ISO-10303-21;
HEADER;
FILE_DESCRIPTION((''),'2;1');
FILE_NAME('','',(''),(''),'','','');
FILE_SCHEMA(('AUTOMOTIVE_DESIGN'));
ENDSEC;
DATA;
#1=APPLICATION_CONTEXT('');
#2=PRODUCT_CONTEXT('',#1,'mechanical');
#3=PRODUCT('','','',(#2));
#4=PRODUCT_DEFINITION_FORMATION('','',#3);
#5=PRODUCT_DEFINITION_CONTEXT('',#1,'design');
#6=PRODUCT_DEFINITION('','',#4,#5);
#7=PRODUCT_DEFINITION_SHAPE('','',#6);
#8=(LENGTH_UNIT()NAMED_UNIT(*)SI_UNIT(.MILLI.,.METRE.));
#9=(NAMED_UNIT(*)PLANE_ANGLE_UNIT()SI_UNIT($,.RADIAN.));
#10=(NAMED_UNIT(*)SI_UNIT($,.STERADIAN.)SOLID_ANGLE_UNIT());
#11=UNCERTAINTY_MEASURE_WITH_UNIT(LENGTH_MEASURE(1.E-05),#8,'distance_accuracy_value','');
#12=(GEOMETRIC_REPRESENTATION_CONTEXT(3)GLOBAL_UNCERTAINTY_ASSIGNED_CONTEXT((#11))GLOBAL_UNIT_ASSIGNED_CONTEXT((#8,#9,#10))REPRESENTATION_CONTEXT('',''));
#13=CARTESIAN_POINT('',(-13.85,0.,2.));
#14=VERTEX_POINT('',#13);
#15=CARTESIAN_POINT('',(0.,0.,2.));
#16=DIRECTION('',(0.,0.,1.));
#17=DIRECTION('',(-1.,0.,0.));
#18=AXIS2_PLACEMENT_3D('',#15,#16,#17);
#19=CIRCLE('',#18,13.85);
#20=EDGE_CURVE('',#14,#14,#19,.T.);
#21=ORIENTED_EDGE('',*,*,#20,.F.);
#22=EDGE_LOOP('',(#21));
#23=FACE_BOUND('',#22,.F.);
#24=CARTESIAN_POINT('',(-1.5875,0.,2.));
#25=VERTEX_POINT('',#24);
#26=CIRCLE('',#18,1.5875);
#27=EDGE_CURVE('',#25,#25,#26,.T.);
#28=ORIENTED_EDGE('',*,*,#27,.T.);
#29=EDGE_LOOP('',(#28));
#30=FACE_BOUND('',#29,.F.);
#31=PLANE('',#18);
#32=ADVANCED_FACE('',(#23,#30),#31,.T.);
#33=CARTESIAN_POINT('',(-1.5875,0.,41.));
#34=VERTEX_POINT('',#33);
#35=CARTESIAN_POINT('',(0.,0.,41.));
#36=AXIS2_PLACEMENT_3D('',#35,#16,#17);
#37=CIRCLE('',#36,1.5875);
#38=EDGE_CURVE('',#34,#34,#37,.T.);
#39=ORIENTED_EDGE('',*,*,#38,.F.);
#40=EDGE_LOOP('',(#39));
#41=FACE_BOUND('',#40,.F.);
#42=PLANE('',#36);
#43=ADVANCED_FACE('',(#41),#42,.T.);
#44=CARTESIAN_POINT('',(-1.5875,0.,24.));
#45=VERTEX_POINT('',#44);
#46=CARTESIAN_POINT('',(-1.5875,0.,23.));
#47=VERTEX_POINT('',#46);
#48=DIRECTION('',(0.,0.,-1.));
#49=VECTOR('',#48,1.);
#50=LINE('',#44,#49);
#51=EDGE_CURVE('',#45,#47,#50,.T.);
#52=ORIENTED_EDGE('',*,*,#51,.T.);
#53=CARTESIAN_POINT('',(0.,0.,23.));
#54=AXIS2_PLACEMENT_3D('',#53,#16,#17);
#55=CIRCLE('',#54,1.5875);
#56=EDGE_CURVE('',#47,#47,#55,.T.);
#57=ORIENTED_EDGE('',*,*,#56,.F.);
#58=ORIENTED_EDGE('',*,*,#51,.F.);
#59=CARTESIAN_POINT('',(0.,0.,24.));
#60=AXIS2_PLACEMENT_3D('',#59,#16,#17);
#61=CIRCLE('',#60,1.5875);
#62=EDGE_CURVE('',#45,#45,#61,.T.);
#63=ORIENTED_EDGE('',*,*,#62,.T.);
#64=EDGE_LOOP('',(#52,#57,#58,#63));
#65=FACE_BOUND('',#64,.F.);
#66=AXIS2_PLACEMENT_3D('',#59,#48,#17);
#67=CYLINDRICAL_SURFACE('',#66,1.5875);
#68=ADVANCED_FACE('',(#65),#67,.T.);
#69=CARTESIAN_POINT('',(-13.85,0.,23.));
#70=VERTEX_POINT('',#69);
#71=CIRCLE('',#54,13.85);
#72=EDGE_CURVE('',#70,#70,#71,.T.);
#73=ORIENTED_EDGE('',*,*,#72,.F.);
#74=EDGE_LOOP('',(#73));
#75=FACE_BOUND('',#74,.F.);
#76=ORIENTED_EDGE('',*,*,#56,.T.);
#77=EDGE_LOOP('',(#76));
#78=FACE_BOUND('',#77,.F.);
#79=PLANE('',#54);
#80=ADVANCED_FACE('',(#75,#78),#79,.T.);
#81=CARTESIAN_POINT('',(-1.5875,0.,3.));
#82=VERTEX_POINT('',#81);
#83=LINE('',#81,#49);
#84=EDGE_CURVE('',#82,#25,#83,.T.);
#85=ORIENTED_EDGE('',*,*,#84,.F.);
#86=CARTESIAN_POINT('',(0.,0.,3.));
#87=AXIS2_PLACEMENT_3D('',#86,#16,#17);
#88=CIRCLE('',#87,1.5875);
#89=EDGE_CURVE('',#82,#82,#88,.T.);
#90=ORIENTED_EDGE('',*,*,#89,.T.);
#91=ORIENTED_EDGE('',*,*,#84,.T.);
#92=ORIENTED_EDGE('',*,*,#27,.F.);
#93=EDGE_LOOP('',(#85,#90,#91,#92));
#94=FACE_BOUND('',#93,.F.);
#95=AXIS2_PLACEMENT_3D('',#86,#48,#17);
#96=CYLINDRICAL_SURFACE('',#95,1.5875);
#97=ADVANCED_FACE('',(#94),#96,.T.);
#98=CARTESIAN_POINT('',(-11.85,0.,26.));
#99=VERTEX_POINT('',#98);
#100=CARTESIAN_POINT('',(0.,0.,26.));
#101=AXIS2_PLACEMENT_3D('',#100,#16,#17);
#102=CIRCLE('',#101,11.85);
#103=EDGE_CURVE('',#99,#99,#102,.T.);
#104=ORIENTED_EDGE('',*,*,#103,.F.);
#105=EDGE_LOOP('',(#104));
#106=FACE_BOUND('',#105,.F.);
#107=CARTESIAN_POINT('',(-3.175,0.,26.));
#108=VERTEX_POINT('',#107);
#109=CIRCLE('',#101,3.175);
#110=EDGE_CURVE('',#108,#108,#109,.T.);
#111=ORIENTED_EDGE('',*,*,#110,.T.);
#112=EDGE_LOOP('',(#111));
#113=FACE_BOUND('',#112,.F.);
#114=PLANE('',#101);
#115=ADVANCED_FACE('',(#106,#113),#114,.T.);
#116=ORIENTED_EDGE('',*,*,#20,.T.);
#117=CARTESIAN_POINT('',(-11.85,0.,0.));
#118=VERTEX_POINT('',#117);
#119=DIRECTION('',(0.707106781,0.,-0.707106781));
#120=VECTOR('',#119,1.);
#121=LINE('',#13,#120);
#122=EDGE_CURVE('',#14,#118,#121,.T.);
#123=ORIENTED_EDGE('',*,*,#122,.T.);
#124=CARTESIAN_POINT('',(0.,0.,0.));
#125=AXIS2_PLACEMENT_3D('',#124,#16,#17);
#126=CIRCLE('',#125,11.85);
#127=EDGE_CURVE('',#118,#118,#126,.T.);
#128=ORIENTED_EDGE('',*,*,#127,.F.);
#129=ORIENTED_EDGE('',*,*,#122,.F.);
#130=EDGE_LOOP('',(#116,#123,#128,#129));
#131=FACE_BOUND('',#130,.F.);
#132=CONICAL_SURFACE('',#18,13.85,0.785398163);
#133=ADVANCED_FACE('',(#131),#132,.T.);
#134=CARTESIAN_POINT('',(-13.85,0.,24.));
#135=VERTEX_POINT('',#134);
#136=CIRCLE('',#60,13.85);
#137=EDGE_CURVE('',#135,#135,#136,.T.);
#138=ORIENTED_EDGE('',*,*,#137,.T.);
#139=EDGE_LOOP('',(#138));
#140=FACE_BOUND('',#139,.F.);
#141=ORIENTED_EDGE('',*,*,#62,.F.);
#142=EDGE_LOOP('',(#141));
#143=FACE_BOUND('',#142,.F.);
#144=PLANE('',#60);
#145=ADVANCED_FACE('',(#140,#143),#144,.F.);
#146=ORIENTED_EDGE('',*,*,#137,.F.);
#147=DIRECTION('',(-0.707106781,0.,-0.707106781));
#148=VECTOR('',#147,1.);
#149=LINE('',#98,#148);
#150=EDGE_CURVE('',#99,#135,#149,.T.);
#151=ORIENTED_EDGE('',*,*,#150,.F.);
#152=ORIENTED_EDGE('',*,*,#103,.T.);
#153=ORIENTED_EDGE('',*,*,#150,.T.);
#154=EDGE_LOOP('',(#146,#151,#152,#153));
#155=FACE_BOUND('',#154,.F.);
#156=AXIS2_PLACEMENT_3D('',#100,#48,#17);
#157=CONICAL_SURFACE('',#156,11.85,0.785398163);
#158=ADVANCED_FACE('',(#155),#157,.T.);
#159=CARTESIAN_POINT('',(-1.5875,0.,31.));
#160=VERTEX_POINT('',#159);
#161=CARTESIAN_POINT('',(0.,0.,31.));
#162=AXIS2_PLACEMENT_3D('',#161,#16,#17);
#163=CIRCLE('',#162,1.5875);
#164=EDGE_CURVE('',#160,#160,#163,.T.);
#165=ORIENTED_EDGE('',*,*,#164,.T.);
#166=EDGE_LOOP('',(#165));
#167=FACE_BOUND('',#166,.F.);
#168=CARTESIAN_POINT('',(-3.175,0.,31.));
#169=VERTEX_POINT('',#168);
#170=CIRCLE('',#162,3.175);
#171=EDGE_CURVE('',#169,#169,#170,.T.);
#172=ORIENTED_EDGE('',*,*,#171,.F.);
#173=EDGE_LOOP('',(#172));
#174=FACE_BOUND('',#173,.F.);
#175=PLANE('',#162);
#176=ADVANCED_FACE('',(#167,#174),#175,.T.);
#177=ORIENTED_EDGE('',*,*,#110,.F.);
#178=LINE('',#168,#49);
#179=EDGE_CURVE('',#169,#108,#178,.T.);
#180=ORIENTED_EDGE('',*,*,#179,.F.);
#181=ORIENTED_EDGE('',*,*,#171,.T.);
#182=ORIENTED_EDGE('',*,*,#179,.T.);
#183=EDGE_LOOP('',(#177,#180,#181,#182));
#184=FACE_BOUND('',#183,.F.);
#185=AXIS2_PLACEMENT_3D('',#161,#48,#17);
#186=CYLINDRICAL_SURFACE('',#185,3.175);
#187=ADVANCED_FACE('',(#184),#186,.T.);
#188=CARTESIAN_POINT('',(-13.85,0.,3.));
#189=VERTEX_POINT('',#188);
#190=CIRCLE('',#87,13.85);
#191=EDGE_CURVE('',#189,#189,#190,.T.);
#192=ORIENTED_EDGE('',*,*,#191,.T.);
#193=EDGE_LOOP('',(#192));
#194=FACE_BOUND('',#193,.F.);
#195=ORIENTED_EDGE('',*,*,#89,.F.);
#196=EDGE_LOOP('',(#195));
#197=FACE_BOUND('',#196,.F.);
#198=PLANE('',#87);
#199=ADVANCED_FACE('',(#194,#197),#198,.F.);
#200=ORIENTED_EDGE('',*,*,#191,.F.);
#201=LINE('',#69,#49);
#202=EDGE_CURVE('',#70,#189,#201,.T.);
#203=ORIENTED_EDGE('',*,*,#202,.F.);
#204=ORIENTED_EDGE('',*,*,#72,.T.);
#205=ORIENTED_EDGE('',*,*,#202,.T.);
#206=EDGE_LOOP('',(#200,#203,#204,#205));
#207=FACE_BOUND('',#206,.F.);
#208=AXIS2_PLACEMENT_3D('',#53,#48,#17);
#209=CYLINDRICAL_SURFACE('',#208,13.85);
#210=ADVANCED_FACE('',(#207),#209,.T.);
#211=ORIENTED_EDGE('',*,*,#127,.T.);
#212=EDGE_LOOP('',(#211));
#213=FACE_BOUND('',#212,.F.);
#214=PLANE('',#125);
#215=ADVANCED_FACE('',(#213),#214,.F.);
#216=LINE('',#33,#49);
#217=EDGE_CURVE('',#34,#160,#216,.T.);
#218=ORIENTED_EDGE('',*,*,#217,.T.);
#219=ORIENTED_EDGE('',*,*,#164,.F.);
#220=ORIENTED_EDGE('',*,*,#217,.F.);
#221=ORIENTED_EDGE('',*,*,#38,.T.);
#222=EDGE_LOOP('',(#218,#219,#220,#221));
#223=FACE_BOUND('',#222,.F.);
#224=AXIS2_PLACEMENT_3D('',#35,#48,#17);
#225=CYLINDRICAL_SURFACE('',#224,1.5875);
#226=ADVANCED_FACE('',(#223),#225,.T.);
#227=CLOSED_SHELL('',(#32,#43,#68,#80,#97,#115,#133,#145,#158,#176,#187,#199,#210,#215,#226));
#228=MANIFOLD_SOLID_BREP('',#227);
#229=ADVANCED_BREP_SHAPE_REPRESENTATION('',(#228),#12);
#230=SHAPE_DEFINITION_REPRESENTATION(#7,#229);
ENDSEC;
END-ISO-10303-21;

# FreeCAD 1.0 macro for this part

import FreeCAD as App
import Part
import Sketcher
from FreeCAD import Vector
Q = App.Units.Quantity

doc = App.newDocument("Part")
body = doc.addObject("PartDesign::Body", "Body")

# Sketch on XZ plane
sketch1 = body.newObject("Sketcher::SketchObject", "Sketch")
sketch1.AttachmentSupport = (doc.getObject("XZ_Plane"), [""])
sketch1.MapMode = "FlatFace"
sketch1.addGeometry(Part.LineSegment(Vector(-11.8, 0, 0), Vector(0, 0, 0)), False)
sketch1.addGeometry(Part.LineSegment(Vector(0, 0, 0), Vector(0, 41, 0)), False)
sketch1.addGeometry(Part.LineSegment(Vector(0, 41, 0), Vector(-1.6, 41, 0)), False)
sketch1.addGeometry(Part.LineSegment(Vector(-1.6, 41, 0), Vector(-1.6, 31, 0)), False)
sketch1.addGeometry(Part.LineSegment(Vector(-1.6, 31, 0), Vector(-3.2, 31, 0)), False)
sketch1.addGeometry(Part.LineSegment(Vector(-3.2, 31, 0), Vector(-3.2, 26, 0)), False)
sketch1.addGeometry(Part.LineSegment(Vector(-3.2, 26, 0), Vector(-11.8, 26, 0)), False)
sketch1.addGeometry(Part.LineSegment(Vector(-11.8, 26, 0), Vector(-13.8, 24, 0)), False)
sketch1.addGeometry(Part.LineSegment(Vector(-13.8, 24, 0), Vector(-1.6, 24, 0)), False)
sketch1.addGeometry(Part.LineSegment(Vector(-1.6, 24, 0), Vector(-1.6, 23, 0)), False)
sketch1.addGeometry(Part.LineSegment(Vector(-1.6, 23, 0), Vector(-13.8, 23, 0)), False)
sketch1.addGeometry(Part.LineSegment(Vector(-13.8, 23, 0), Vector(-13.8, 3, 0)), False)
sketch1.addGeometry(Part.LineSegment(Vector(-13.8, 3, 0), Vector(-1.6, 3, 0)), False)
sketch1.addGeometry(Part.LineSegment(Vector(-1.6, 3, 0), Vector(-1.6, 2, 0)), False)
sketch1.addGeometry(Part.LineSegment(Vector(-1.6, 2, 0), Vector(-13.8, 2, 0)), False)
sketch1.addGeometry(Part.LineSegment(Vector(-13.8, 2, 0), Vector(-11.8, 0, 0)), False)
sketch1.addConstraint(Sketcher.Constraint("Coincident", 0, 2, 1, 1))
sketch1.addConstraint(Sketcher.Constraint("Coincident", 1, 2, 2, 1))
sketch1.addConstraint(Sketcher.Constraint("Coincident", 2, 2, 3, 1))
sketch1.addConstraint(Sketcher.Constraint("Coincident", 3, 2, 4, 1))
sketch1.addConstraint(Sketcher.Constraint("Coincident", 4, 2, 5, 1))
sketch1.addConstraint(Sketcher.Constraint("Coincident", 5, 2, 6, 1))
sketch1.addConstraint(Sketcher.Constraint("Coincident", 6, 2, 7, 1))
sketch1.addConstraint(Sketcher.Constraint("Coincident", 7, 2, 8, 1))
sketch1.addConstraint(Sketcher.Constraint("Coincident", 8, 2, 9, 1))
sketch1.addConstraint(Sketcher.Constraint("Coincident", 9, 2, 10, 1))
sketch1.addConstraint(Sketcher.Constraint("Coincident", 10, 2, 11, 1))
sketch1.addConstraint(Sketcher.Constraint("Coincident", 11, 2, 12, 1))
sketch1.addConstraint(Sketcher.Constraint("Coincident", 12, 2, 13, 1))
sketch1.addConstraint(Sketcher.Constraint("Coincident", 13, 2, 14, 1))
sketch1.addConstraint(Sketcher.Constraint("Coincident", 14, 2, 15, 1))
sketch1.addConstraint(Sketcher.Constraint("Coincident", 15, 2, 0, 1))
sketch1.addConstraint(Sketcher.Constraint("Horizontal", 0))
sketch1.addConstraint(Sketcher.Constraint("Vertical", 1))
sketch1.addConstraint(Sketcher.Constraint("Horizontal", 2))
sketch1.addConstraint(Sketcher.Constraint("Vertical", 3))
sketch1.addConstraint(Sketcher.Constraint("Horizontal", 4))
sketch1.addConstraint(Sketcher.Constraint("Vertical", 5))
sketch1.addConstraint(Sketcher.Constraint("Horizontal", 6))
sketch1.addConstraint(Sketcher.Constraint("Horizontal", 8))
sketch1.addConstraint(Sketcher.Constraint("Vertical", 9))
sketch1.addConstraint(Sketcher.Constraint("Horizontal", 10))
sketch1.addConstraint(Sketcher.Constraint("Vertical", 11))
sketch1.addConstraint(Sketcher.Constraint("Horizontal", 12))
sketch1.addConstraint(Sketcher.Constraint("Vertical", 13))
sketch1.addConstraint(Sketcher.Constraint("Horizontal", 14))
sketch1.addConstraint(Sketcher.Constraint("Coincident", 0, 2, -1, 1))
sketch1.addConstraint(Sketcher.Constraint("Perpendicular", 7, 15))
sketch1.addConstraint(Sketcher.Constraint("Vertical", 3, 2, 8, 2))
sketch1.addConstraint(Sketcher.Constraint("Vertical", 7, 2, 10, 2))
sketch1.addConstraint(Sketcher.Constraint("Vertical", 9, 2, 12, 2))
sketch1.addConstraint(Sketcher.Constraint("Vertical", 11, 2, 14, 2))
sketch1.addConstraint(Sketcher.Constraint("Vertical", 6, 2, 15, 2))
sketch1.addConstraint(Sketcher.Constraint("Equal", 2, 4))
sketch1.addConstraint(Sketcher.Constraint("Equal", 9, 13))
sketch1.addConstraint(Sketcher.Constraint("Equal", 7, 15))
sketch1.addConstraint(Sketcher.Constraint("DistanceY", 1, 1, 1, 2, Q("41 mm")))
sketch1.addConstraint(Sketcher.Constraint("DistanceY", 3, 2, 3, 1, Q("10 mm")))
sketch1.addConstraint(Sketcher.Constraint("DistanceY", 5, 2, 5, 1, Q("5 mm")))
sketch1.addConstraint(Sketcher.Constraint("DistanceY", 9, 2, 9, 1, Q("1 mm")))
sketch1.addConstraint(Sketcher.Constraint("DistanceY", 11, 2, 11, 1, Q("20 mm")))
sketch1.addConstraint(Sketcher.Constraint("DistanceX", 0, 1, 0, 2, Q("11.85 mm")))
sketch1.addConstraint(Sketcher.Constraint("DistanceX", 6, 2, 6, 1, Q("8.675 mm")))
revolution = body.newObject("PartDesign::Revolution", "Revolution")
revolution.Profile = sketch1
revolution.ReferenceAxis = (sketch1, ["V_Axis"])
revolution.Angle = 360

doc.recompute()
